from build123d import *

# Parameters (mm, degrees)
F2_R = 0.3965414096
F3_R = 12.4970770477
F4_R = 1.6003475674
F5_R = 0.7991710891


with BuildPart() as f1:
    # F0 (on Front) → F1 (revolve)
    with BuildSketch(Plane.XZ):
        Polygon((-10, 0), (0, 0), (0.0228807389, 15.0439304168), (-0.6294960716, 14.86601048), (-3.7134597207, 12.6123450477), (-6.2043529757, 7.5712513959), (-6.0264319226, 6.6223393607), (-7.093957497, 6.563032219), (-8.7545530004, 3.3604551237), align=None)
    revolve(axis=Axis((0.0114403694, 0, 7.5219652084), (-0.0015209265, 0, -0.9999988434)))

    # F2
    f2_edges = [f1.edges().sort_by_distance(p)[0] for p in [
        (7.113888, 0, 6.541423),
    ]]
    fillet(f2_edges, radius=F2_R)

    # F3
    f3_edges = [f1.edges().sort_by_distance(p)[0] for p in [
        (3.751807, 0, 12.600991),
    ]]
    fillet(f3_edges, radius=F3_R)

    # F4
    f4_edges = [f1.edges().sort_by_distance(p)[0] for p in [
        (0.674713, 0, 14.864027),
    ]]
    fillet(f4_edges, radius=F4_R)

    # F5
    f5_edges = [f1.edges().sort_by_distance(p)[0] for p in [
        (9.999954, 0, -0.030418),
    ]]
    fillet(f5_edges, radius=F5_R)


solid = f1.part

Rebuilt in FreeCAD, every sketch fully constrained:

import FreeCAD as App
import Part
import Sketcher

V = App.Vector
Q = App.Units.Quantity


def edges_at(feature, points):
    """Names of the edges that pass closest to the given points."""
    edges = feature.Shape.Edges
    near = lambda p: min(range(len(edges)), key=lambda i: edges[i].distToShape(Part.Vertex(*p))[0])
    return sorted({f"Edge{near(p) + 1}" for p in points})

doc = App.newDocument("Part")
body = doc.addObject("PartDesign::Body", "Body")

# Sketch on XZ plane
sketch1 = body.newObject("Sketcher::SketchObject", "Sketch")
sketch1.AttachmentSupport = (doc.getObject("XZ_Plane"), [""])
sketch1.MapMode = "FlatFace"
sketch1.addGeometry([
    Part.LineSegment(V(-10, 0, 0), V(0, 0, 0)),  # 0
    Part.LineSegment(V(0, 0, 0), V(0, 15, 0)),  # 1
    Part.LineSegment(V(0, 15, 0), V(-0.6, 14.9, 0)),  # 2
    Part.LineSegment(V(-0.6, 14.9, 0), V(-3.7, 12.6, 0)),  # 3
    Part.LineSegment(V(-3.7, 12.6, 0), V(-6.2, 7.6, 0)),  # 4
    Part.LineSegment(V(-6.2, 7.6, 0), V(-6, 6.6, 0)),  # 5
    Part.LineSegment(V(-6, 6.6, 0), V(-7.1, 6.6, 0)),  # 6
    Part.LineSegment(V(-7.1, 6.6, 0), V(-8.8, 3.4, 0)),  # 7
    Part.LineSegment(V(-8.8, 3.4, 0), V(-10, 0, 0)),  # 8
], False)
sketch1.addGeometry(Part.LineSegment(V(0, 15, 0), V(0, 0, 0)), True)  # axis
sketch1.addConstraint([
    Sketcher.Constraint("Coincident", 0, 2, 1, 1),
    Sketcher.Constraint("Coincident", 1, 2, 2, 1),
    Sketcher.Constraint("Coincident", 2, 2, 3, 1),
    Sketcher.Constraint("Coincident", 3, 2, 4, 1),
    Sketcher.Constraint("Coincident", 4, 2, 5, 1),
    Sketcher.Constraint("Coincident", 5, 2, 6, 1),
    Sketcher.Constraint("Coincident", 6, 2, 7, 1),
    Sketcher.Constraint("Coincident", 7, 2, 8, 1),
    Sketcher.Constraint("Coincident", 8, 2, 0, 1),
    Sketcher.Constraint("Horizontal", 0),
    Sketcher.Constraint("Coincident", 0, 2, -1, 1),
    Sketcher.Constraint("Coincident", 9, 1, 1, 2),
    Sketcher.Constraint("Parallel", 1, 9),
    Sketcher.Constraint("DistanceX", 0, 1, 0, 2, Q("10 mm")),
    Sketcher.Constraint("DistanceX", 7, 2, 4, 2, Q("2.5502 mm")),
    Sketcher.Constraint("Distance", 5, Q("0.965448 mm")),
    Sketcher.Constraint("Distance", 6, Q("1.069172 mm")),
    Sketcher.Constraint("DistanceX", -1, 1, 1, 2, Q("0.022881 mm")),
    Sketcher.Constraint("DistanceY", -1, 1, 1, 2, Q("15.04393 mm")),
    Sketcher.Constraint("DistanceY", -1, 1, 2, 2, Q("14.86601 mm")),
    Sketcher.Constraint("DistanceX", 3, 2, -1, 1, Q("3.71346 mm")),
    Sketcher.Constraint("DistanceY", -1, 1, 4, 2, Q("7.571251 mm")),
    Sketcher.Constraint("DistanceX", 5, 2, -1, 1, Q("6.026432 mm")),
    Sketcher.Constraint("DistanceY", -1, 1, 5, 2, Q("6.622339 mm")),
    Sketcher.Constraint("DistanceY", 9, 2, -1, 1, Q("0.015209 mm")),
    Sketcher.Constraint("DistanceY", 6, 2, 4, 2, Q("1.008219 mm")),
    Sketcher.Constraint("DistanceX", 6, 2, 2, 2, Q("6.464461 mm")),
    Sketcher.Constraint("DistanceY", 7, 2, 3, 2, Q("9.25189 mm")),
    Sketcher.Constraint("Distance", 3, Q("3.819665 mm")),
])
revolution = body.newObject("PartDesign::Revolution", "Revolution")
revolution.Profile = sketch1
revolution.ReferenceAxis = (sketch1, ["Axis0"])
revolution.Angle = 360
doc.recompute()

fillet = body.newObject("PartDesign::Fillet", "Fillet")
fillet.Base = (revolution, edges_at(revolution, [(7.114, 0, 6.541)]))
fillet.Radius = 0.396541
doc.recompute()

fillet2 = body.newObject("PartDesign::Fillet", "Fillet001")
fillet2.Base = (fillet, edges_at(fillet, [(3.752, 0, 12.601)]))
fillet2.Radius = 12.497077
doc.recompute()

fillet3 = body.newObject("PartDesign::Fillet", "Fillet002")
fillet3.Base = (fillet2, edges_at(fillet2, [(0.675, 0, 14.864)]))
fillet3.Radius = 1.600348
doc.recompute()

fillet4 = body.newObject("PartDesign::Fillet", "Fillet003")
fillet4.Base = (fillet3, edges_at(fillet3, [(10, 0, -0.03)]))
fillet4.Radius = 0.799171

doc.recompute()
